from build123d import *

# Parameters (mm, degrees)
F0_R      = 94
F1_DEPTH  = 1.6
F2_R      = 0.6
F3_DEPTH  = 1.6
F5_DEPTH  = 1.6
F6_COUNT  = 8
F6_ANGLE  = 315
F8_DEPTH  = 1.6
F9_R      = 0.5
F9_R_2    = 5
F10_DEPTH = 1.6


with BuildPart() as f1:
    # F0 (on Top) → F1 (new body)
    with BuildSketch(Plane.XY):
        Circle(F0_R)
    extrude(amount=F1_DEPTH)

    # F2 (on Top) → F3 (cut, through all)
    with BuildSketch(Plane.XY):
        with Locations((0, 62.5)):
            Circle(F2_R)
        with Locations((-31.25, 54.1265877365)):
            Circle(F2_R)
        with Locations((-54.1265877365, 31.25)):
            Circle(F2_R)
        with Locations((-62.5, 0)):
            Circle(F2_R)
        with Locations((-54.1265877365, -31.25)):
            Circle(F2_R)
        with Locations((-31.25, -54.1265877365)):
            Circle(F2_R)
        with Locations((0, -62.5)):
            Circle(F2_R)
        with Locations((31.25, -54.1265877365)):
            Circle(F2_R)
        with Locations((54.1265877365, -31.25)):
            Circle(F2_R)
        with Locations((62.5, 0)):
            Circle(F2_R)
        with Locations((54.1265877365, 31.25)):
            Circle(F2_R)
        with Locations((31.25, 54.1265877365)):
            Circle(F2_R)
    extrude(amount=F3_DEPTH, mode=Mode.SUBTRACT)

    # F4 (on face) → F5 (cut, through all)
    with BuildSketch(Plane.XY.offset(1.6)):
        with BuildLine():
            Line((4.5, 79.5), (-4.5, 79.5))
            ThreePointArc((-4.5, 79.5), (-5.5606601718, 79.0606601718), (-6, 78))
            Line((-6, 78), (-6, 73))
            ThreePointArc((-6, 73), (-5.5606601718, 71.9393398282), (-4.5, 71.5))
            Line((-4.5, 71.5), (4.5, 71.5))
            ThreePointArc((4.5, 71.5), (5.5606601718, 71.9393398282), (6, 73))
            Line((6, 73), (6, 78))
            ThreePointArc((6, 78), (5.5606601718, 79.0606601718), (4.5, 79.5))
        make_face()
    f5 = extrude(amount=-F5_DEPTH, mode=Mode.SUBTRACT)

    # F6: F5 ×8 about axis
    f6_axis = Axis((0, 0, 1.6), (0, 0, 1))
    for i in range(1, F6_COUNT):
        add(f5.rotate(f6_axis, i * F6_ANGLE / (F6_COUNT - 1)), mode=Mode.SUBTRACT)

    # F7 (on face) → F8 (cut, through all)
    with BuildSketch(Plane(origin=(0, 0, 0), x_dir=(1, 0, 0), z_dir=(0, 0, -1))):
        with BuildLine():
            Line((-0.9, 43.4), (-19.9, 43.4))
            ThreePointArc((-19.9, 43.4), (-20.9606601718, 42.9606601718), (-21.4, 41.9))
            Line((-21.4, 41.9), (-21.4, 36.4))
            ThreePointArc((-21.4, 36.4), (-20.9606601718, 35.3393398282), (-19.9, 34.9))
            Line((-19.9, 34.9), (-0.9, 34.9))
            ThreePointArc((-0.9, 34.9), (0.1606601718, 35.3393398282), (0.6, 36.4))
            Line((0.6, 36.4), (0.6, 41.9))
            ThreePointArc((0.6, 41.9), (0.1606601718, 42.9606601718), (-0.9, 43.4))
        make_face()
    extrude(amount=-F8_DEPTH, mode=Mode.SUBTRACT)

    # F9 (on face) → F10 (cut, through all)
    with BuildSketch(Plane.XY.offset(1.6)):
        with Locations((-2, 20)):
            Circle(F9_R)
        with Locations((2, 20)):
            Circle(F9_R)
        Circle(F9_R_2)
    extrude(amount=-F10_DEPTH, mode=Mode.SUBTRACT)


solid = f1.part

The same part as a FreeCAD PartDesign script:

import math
import FreeCAD as App
import Part
import Sketcher

V = App.Vector

doc = App.newDocument("Part")
body = doc.addObject("PartDesign::Body", "Body")

sketch1 = body.newObject("Sketcher::SketchObject", "Sketch")
sketch1.AttachmentSupport = (doc.getObject("XY_Plane"), [""])
sketch1.MapMode = "FlatFace"
sketch1.addGeometry(Part.Circle(V(0, 0, 0), V(0, 0, 1), 94), False)
sketch1.addConstraint([
    Sketcher.Constraint("Coincident", 0, 3, -1, 1),
    Sketcher.Constraint("Diameter", 0, 188.0),
])
pad1 = body.newObject("PartDesign::Pad", "Pad")
pad1.Profile = sketch1
pad1.Length = 1.6

sketch2 = body.newObject("Sketcher::SketchObject", "Sketch001")
sketch2.AttachmentSupport = (doc.getObject("XY_Plane"), [""])
sketch2.MapMode = "FlatFace"
sketch2.addGeometry([
    Part.Circle(V(0, 62.5, 0), V(0, 0, 1), 0.6),
    Part.Circle(V(-31.2, 54.1, 0), V(0, 0, 1), 0.6),
    Part.Circle(V(-54.1, 31.2, 0), V(0, 0, 1), 0.6),
    Part.Circle(V(-62.5, 0, 0), V(0, 0, 1), 0.6),
    Part.Circle(V(-54.1, -31.2, 0), V(0, 0, 1), 0.6),
    Part.Circle(V(-31.2, -54.1, 0), V(0, 0, 1), 0.6),
    Part.Circle(V(0, -62.5, 0), V(0, 0, 1), 0.6),
    Part.Circle(V(31.2, -54.1, 0), V(0, 0, 1), 0.6),
    Part.Circle(V(54.1, -31.2, 0), V(0, 0, 1), 0.6),
    Part.Circle(V(62.5, 0, 0), V(0, 0, 1), 0.6),
    Part.Circle(V(54.1, 31.2, 0), V(0, 0, 1), 0.6),
    Part.Circle(V(31.2, 54.1, 0), V(0, 0, 1), 0.6),
], False)
sketch2.addConstraint([
    Sketcher.Constraint("Equal", 0, 1),
    Sketcher.Constraint("Equal", 1, 2),
    Sketcher.Constraint("Equal", 2, 3),
    Sketcher.Constraint("Equal", 3, 4),
    Sketcher.Constraint("Equal", 4, 5),
    Sketcher.Constraint("Equal", 5, 6),
    Sketcher.Constraint("Equal", 6, 7),
    Sketcher.Constraint("Equal", 7, 8),
    Sketcher.Constraint("Equal", 8, 9),
    Sketcher.Constraint("Equal", 9, 10),
    Sketcher.Constraint("Equal", 10, 11),
    Sketcher.Constraint("Symmetric", 0, 3, 6, 3, -1, 1),
    Sketcher.Constraint("Symmetric", 1, 3, 7, 3, -1, 1),
    Sketcher.Constraint("Symmetric", 2, 3, 8, 3, -1, 1),
    Sketcher.Constraint("Symmetric", 3, 3, 9, 3, -1, 1),
    Sketcher.Constraint("Symmetric", 4, 3, 10, 3, -1, 1),
    Sketcher.Constraint("Symmetric", 5, 3, 11, 3, -1, 1),
    Sketcher.Constraint("Symmetric", 5, 3, 7, 3, -2),
    Sketcher.Constraint("Symmetric", 4, 3, 8, 3, -2),
    Sketcher.Constraint("PointOnObject", 0, 3, -2),
    Sketcher.Constraint("PointOnObject", 3, 3, -1),
    Sketcher.Constraint("Diameter", 0, 1.2),
    Sketcher.Constraint("DistanceY", -1, 1, 0, 3, 62.5),
    Sketcher.Constraint("DistanceX", 3, 3, -1, 1, 62.5),
    Sketcher.Constraint("DistanceY", 4, 3, 2, 3, 62.5),
    Sketcher.Constraint("DistanceX", 5, 3, 7, 3, 62.5),
    Sketcher.Constraint("DistanceY", -1, 1, 1, 3, 54.126588),
    Sketcher.Constraint("DistanceX", 2, 3, -1, 1, 54.126588),
])
pocket1 = body.newObject("PartDesign::Pocket", "Pocket")
pocket1.Profile = sketch2
pocket1.Type = "ThroughAll"
pocket1.Reversed = True

sketch3 = body.newObject("Sketcher::SketchObject", "Sketch002")
sketch3.AttachmentSupport = (doc.getObject("XY_Plane"), [""])
sketch3.MapMode = "FlatFace"
sketch3.AttachmentOffset = App.Placement(V(0, 0, 1.6), App.Rotation())
sketch3.addGeometry([
    Part.LineSegment(V(4.5, 79.5, 0), V(-4.5, 79.5, 0)),
    Part.ArcOfCircle(Part.Circle(V(-4.5, 78, 0), V(0, 0, 1), 1.5), math.radians(90), math.radians(180)),
    Part.LineSegment(V(-6, 78, 0), V(-6, 73, 0)),
    Part.ArcOfCircle(Part.Circle(V(-4.5, 73, 0), V(0, 0, 1), 1.5), math.radians(180), math.radians(270)),
    Part.LineSegment(V(-4.5, 71.5, 0), V(4.5, 71.5, 0)),
    Part.ArcOfCircle(Part.Circle(V(4.5, 73, 0), V(0, 0, 1), 1.5), math.radians(-90), math.radians(0)),
    Part.LineSegment(V(6, 73, 0), V(6, 78, 0)),
    Part.ArcOfCircle(Part.Circle(V(4.5, 78, 0), V(0, 0, 1), 1.5), math.radians(0), math.radians(90)),
], False)
sketch3.addConstraint([
    Sketcher.Constraint("Tangent", 0, 2, 1, 1),
    Sketcher.Constraint("Tangent", 1, 2, 2, 1),
    Sketcher.Constraint("Tangent", 2, 2, 3, 1),
    Sketcher.Constraint("Tangent", 3, 2, 4, 1),
    Sketcher.Constraint("Tangent", 4, 2, 5, 1),
    Sketcher.Constraint("Tangent", 5, 2, 6, 1),
    Sketcher.Constraint("Tangent", 6, 2, 7, 1),
    Sketcher.Constraint("Tangent", 7, 2, 0, 1),
    Sketcher.Constraint("Horizontal", 0),
    Sketcher.Constraint("Vertical", 2),
    Sketcher.Constraint("Horizontal", 4),
    Sketcher.Constraint("Vertical", 6),
    Sketcher.Constraint("Equal", 1, 3),
    Sketcher.Constraint("Equal", 3, 5),
    Sketcher.Constraint("Equal", 5, 7),
    Sketcher.Constraint("Radius", 1, 1.5),
    Sketcher.Constraint("DistanceX", 0, 2, 0, 1, 9.0),
    Sketcher.Constraint("DistanceY", 2, 2, 2, 1, 5.0),
    Sketcher.Constraint("DistanceY", -1, 1, 1, 3, 78.0),
    Sketcher.Constraint("DistanceX", 1, 2, -1, 1, 6.0),
])
pocket2 = body.newObject("PartDesign::Pocket", "Pocket001")
pocket2.Profile = sketch3
pocket2.Type = "ThroughAll"
doc.recompute()

polarpattern = body.newObject("PartDesign::PolarPattern", "PolarPattern")
polarpattern.Originals = [pocket2]
polarpattern.Axis = (doc.getObject("Z_Axis"), [""])
polarpattern.Angle = 360
polarpattern.Occurrences = 8
body.Tip = polarpattern

sketch4 = body.newObject("Sketcher::SketchObject", "Sketch003")
sketch4.AttachmentSupport = (doc.getObject("XY_Plane"), [""])
sketch4.MapMode = "FlatFace"
sketch4.addGeometry([
    Part.LineSegment(V(-0.9, -43.4, 0), V(-19.9, -43.4, 0)),
    Part.ArcOfCircle(Part.Circle(V(-19.9, -41.9, 0), V(0, 0, 1), 1.5), math.radians(180), math.radians(270)),
    Part.LineSegment(V(-21.4, -41.9, 0), V(-21.4, -36.4, 0)),
    Part.ArcOfCircle(Part.Circle(V(-19.9, -36.4, 0), V(0, 0, 1), 1.5), math.radians(90), math.radians(180)),
    Part.LineSegment(V(-19.9, -34.9, 0), V(-0.9, -34.9, 0)),
    Part.ArcOfCircle(Part.Circle(V(-0.9, -36.4, 0), V(0, 0, 1), 1.5), math.radians(0), math.radians(90)),
    Part.LineSegment(V(0.6, -36.4, 0), V(0.6, -41.9, 0)),
    Part.ArcOfCircle(Part.Circle(V(-0.9, -41.9, 0), V(0, 0, 1), 1.5), math.radians(-90), math.radians(0)),
], False)
sketch4.addConstraint([
    Sketcher.Constraint("Tangent", 0, 2, 1, 2),
    Sketcher.Constraint("Tangent", 1, 1, 2, 1),
    Sketcher.Constraint("Tangent", 2, 2, 3, 2),
    Sketcher.Constraint("Tangent", 3, 1, 4, 1),
    Sketcher.Constraint("Tangent", 4, 2, 5, 2),
    Sketcher.Constraint("Tangent", 5, 1, 6, 1),
    Sketcher.Constraint("Tangent", 6, 2, 7, 2),
    Sketcher.Constraint("Tangent", 7, 1, 0, 1),
    Sketcher.Constraint("Horizontal", 0),
    Sketcher.Constraint("Vertical", 2),
    Sketcher.Constraint("Horizontal", 4),
    Sketcher.Constraint("Vertical", 6),
    Sketcher.Constraint("Equal", 1, 3),
    Sketcher.Constraint("Equal", 3, 5),
    Sketcher.Constraint("Equal", 5, 7),
    Sketcher.Constraint("Radius", 1, 1.5),
    Sketcher.Constraint("DistanceX", 0, 2, 0, 1, 19.0),
    Sketcher.Constraint("DistanceY", 2, 1, 2, 2, 5.5),
    Sketcher.Constraint("DistanceX", 1, 3, -1, 1, 19.9),
    Sketcher.Constraint("DistanceY", 1, 3, -1, 1, 41.9),
])
pocket3 = body.newObject("PartDesign::Pocket", "Pocket002")
pocket3.Profile = sketch4
pocket3.Type = "ThroughAll"
pocket3.Reversed = True

sketch5 = body.newObject("Sketcher::SketchObject", "Sketch004")
sketch5.AttachmentSupport = (doc.getObject("XY_Plane"), [""])
sketch5.MapMode = "FlatFace"
sketch5.AttachmentOffset = App.Placement(V(0, 0, 1.6), App.Rotation())
sketch5.addGeometry([
    Part.Circle(V(-2, 20, 0), V(0, 0, 1), 0.5),
    Part.Circle(V(2, 20, 0), V(0, 0, 1), 0.5),
    Part.Circle(V(0, 0, 0), V(0, 0, 1), 5),
], False)
sketch5.addConstraint([
    Sketcher.Constraint("Coincident", 2, 3, -1, 1),
    Sketcher.Constraint("Equal", 0, 1),
    Sketcher.Constraint("Symmetric", 0, 3, 1, 3, -2),
    Sketcher.Constraint("Diameter", 0, 1.0),
    Sketcher.Constraint("Diameter", 2, 10.0),
    Sketcher.Constraint("DistanceX", 0, 3, -1, 1, 2.0),
    Sketcher.Constraint("DistanceY", -1, 1, 0, 3, 20.0),
])
pocket4 = body.newObject("PartDesign::Pocket", "Pocket003")
pocket4.Profile = sketch5
pocket4.Type = "ThroughAll"

doc.recompute()
